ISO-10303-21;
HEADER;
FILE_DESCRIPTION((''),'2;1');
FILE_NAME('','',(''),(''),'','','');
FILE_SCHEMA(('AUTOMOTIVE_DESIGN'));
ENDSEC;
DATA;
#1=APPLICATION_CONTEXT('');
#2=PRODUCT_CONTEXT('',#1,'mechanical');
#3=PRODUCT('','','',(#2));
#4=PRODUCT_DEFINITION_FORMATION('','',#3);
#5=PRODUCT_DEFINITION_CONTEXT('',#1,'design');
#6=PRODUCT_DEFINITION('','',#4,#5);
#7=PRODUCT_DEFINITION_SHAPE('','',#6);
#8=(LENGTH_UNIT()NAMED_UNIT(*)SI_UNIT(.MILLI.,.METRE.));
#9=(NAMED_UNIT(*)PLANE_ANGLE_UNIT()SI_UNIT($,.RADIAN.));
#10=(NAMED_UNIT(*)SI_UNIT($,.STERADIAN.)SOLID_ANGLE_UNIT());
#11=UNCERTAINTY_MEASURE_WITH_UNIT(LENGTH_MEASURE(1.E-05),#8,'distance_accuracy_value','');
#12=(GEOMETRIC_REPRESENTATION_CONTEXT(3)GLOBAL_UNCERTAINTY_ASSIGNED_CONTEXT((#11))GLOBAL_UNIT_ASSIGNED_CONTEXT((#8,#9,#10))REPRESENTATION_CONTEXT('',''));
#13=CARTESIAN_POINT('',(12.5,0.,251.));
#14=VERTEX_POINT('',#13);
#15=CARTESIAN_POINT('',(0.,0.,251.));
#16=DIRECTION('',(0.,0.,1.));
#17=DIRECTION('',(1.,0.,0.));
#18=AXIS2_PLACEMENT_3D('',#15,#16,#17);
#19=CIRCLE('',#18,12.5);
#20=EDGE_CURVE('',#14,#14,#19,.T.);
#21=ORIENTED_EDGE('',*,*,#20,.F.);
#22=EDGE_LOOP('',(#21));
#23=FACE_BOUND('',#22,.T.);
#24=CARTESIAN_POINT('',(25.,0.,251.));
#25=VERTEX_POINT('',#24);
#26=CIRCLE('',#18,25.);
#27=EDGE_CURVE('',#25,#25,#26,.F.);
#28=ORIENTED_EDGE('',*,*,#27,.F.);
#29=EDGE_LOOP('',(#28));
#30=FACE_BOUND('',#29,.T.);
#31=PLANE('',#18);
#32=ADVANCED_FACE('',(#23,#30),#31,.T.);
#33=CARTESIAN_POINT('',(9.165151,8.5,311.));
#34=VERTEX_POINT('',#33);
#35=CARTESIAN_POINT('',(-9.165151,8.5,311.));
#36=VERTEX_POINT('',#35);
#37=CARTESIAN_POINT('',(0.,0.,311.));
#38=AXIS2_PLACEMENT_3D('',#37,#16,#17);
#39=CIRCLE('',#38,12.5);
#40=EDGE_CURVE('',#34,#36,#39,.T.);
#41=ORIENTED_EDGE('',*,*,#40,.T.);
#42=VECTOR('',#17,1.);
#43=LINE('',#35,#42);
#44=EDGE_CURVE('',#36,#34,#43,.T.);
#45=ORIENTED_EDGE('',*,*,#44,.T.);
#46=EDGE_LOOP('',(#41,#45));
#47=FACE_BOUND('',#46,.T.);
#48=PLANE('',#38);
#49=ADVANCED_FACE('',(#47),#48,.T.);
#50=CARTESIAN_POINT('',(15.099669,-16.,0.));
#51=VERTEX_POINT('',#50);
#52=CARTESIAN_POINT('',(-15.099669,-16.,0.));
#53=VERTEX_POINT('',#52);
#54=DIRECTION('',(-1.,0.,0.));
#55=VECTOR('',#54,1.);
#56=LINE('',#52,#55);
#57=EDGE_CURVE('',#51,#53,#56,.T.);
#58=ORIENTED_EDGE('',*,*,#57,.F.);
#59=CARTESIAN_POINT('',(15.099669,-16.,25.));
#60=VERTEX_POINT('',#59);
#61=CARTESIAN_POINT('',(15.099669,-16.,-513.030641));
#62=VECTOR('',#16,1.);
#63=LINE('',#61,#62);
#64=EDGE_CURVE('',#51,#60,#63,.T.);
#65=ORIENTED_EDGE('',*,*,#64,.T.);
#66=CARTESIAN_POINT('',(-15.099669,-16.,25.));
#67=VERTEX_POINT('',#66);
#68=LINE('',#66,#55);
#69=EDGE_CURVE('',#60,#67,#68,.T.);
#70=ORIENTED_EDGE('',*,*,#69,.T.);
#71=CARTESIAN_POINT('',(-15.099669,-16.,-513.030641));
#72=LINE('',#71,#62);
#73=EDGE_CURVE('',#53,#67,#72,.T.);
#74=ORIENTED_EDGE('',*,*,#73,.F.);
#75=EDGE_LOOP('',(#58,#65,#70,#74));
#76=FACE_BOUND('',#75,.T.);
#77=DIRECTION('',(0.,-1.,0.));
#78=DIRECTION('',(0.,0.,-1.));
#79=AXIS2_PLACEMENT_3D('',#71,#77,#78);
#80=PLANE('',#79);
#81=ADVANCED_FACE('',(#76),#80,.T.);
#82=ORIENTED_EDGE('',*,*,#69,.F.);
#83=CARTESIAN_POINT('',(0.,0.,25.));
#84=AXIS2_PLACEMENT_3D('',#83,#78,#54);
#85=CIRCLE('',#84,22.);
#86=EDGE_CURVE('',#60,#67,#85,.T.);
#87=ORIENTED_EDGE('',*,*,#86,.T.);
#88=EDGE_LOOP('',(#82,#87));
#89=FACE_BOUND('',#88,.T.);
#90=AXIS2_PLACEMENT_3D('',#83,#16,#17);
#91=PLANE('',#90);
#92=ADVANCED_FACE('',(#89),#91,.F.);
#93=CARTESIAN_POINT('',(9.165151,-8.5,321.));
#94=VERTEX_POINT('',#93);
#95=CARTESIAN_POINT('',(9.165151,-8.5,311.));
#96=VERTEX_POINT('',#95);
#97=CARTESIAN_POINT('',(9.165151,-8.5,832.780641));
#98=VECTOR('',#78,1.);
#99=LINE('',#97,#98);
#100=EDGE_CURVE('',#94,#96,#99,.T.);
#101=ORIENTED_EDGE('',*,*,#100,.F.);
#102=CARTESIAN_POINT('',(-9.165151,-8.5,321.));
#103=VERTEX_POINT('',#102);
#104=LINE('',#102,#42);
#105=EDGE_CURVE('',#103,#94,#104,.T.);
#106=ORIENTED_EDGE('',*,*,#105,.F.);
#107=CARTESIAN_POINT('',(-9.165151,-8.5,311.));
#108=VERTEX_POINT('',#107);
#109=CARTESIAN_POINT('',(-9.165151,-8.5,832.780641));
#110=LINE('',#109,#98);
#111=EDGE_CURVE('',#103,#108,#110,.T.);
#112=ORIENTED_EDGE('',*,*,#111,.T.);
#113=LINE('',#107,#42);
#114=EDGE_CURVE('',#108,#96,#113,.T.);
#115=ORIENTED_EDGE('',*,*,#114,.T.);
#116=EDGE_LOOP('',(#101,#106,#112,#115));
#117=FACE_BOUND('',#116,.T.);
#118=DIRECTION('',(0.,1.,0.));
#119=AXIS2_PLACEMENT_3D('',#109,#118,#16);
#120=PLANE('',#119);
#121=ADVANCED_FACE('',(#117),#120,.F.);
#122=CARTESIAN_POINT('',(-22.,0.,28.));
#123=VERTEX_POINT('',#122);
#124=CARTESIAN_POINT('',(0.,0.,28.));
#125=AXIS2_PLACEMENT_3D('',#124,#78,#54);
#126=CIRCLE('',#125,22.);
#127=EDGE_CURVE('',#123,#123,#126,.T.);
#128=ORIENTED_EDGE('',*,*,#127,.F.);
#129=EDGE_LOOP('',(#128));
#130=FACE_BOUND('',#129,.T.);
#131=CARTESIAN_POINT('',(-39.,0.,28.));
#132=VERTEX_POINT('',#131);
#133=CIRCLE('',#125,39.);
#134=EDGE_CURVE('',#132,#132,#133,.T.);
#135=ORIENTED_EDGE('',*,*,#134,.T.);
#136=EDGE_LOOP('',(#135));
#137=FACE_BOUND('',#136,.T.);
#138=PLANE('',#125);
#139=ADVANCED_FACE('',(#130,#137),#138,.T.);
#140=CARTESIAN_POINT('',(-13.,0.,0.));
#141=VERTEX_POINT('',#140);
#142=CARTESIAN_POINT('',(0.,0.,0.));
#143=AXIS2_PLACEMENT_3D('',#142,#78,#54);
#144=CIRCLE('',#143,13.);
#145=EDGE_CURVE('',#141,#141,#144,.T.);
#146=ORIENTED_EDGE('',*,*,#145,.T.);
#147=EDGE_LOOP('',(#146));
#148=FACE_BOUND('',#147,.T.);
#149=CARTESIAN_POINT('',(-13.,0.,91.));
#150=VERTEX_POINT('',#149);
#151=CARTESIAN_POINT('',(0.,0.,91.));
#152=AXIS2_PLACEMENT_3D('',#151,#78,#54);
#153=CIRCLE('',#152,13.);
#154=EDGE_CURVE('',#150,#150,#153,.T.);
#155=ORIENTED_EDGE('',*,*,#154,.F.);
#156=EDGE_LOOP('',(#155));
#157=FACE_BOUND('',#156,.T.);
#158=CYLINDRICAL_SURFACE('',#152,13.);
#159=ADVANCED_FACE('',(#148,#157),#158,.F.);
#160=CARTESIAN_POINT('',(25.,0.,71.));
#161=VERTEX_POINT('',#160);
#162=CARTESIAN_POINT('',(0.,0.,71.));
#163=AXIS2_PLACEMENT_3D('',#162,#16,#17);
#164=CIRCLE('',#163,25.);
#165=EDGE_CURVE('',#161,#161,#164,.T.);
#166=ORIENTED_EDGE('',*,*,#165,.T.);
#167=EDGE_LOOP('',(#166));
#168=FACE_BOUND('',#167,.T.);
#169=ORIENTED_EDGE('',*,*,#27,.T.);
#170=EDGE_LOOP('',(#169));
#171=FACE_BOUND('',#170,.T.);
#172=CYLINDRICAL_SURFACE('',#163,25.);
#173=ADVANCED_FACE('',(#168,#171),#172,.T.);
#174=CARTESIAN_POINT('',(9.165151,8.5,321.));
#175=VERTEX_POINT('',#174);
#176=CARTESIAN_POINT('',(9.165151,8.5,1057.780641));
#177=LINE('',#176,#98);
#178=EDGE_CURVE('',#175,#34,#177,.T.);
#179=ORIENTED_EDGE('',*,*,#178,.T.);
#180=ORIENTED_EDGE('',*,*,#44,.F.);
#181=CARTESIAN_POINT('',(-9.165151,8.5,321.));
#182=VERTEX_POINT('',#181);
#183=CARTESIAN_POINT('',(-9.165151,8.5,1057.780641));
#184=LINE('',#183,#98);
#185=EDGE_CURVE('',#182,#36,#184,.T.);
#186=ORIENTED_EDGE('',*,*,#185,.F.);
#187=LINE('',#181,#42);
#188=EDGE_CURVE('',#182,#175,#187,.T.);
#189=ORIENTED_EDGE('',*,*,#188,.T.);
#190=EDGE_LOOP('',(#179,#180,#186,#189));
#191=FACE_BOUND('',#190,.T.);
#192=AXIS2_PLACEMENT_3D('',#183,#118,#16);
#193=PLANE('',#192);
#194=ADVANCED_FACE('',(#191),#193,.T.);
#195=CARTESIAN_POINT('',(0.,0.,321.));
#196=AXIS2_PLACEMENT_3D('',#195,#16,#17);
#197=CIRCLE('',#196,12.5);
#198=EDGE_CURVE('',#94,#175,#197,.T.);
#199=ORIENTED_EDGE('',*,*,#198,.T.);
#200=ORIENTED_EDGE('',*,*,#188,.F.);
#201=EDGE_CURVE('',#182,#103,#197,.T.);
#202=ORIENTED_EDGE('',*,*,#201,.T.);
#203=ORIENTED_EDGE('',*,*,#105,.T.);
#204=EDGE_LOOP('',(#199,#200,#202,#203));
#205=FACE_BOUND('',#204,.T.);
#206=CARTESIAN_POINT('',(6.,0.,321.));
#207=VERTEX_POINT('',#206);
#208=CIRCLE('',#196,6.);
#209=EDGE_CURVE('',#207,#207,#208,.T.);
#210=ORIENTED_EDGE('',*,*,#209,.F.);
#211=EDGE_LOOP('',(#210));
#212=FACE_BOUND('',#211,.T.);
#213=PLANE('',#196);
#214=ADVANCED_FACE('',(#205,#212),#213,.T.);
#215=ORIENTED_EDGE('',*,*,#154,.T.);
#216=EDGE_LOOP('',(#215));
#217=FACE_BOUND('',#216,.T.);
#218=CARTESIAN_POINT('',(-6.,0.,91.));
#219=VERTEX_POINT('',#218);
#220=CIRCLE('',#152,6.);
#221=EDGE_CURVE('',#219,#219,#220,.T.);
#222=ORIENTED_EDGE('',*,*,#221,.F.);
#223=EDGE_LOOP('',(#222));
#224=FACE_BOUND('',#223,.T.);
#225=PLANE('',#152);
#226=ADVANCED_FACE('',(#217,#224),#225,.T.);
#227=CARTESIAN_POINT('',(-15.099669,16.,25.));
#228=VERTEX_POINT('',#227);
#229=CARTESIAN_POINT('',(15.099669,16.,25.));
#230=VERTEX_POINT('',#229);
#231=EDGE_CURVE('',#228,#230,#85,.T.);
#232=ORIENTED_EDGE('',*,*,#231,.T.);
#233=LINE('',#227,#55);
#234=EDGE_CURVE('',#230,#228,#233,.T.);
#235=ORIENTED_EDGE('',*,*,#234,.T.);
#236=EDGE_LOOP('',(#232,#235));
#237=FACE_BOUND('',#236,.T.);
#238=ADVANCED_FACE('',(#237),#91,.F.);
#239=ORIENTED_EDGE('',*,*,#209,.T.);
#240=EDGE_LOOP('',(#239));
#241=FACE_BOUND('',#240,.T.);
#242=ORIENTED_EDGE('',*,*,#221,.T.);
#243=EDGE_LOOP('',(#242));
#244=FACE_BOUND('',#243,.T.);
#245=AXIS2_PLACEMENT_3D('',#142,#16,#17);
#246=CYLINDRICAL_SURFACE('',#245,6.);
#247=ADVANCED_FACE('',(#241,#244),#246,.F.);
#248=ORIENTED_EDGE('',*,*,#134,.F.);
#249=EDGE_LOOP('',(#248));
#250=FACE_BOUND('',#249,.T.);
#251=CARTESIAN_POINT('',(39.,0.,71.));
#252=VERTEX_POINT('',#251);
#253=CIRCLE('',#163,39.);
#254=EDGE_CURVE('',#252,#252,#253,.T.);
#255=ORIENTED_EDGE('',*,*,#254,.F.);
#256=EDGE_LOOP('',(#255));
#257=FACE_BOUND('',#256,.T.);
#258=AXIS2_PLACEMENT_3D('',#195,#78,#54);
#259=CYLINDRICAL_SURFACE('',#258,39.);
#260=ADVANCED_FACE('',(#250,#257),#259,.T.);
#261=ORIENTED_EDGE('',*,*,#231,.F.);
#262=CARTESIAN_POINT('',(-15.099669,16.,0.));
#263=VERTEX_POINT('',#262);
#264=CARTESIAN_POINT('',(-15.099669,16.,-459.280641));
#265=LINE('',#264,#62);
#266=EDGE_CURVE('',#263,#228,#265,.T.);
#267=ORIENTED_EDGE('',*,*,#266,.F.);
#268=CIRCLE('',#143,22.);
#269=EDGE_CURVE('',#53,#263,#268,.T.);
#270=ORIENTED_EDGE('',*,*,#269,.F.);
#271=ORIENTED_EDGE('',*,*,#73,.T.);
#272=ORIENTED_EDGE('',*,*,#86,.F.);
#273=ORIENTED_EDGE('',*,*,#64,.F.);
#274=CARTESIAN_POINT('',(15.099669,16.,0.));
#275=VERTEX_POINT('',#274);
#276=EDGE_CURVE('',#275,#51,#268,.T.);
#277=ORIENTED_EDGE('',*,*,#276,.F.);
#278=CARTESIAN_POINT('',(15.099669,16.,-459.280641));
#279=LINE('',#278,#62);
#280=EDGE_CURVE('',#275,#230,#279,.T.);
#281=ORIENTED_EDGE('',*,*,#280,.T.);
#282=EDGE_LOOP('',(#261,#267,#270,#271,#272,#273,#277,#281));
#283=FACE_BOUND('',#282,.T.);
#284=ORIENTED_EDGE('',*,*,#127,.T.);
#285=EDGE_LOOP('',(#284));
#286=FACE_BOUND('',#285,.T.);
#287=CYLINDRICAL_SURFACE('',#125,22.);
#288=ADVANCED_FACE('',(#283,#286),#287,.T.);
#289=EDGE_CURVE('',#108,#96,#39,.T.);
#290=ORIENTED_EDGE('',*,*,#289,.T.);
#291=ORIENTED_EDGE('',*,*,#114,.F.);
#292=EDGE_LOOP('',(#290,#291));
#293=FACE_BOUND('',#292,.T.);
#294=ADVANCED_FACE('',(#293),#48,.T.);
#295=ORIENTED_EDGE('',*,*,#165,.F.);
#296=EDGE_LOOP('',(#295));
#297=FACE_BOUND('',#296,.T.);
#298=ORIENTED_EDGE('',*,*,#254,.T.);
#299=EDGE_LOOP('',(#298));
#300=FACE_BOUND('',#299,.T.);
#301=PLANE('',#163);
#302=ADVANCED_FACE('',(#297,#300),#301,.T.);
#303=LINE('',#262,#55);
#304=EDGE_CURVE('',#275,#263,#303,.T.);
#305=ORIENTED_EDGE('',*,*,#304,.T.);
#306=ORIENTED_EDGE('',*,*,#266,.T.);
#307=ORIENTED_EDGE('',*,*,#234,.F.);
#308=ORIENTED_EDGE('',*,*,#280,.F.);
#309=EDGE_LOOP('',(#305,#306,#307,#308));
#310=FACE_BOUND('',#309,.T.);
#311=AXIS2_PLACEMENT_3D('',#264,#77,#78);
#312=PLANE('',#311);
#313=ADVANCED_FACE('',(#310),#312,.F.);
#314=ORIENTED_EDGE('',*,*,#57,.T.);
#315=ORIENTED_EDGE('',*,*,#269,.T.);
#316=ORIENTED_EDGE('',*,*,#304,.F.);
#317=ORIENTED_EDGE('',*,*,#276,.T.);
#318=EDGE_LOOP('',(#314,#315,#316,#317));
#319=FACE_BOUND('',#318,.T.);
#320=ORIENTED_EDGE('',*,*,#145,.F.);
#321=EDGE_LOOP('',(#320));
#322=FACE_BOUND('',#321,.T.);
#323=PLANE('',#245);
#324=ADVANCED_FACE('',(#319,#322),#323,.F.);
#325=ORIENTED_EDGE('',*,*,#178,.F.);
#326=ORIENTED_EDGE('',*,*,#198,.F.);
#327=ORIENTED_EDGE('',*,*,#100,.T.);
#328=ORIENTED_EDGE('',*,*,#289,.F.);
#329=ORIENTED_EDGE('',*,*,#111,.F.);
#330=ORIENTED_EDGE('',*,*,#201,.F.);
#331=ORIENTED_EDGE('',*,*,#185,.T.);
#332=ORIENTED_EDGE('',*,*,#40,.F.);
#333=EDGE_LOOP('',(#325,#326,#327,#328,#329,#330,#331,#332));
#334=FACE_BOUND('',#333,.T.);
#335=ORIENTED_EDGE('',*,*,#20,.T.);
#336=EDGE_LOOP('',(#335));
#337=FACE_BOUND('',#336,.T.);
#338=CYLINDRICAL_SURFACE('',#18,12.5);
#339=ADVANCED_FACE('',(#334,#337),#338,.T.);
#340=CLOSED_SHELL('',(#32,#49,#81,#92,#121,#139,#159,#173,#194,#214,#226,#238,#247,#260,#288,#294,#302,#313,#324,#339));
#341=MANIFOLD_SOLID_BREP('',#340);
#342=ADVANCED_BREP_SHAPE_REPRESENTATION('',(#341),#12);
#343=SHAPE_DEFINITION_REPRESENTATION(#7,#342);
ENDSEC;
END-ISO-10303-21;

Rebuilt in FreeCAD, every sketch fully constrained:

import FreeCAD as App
import Part
import Sketcher

V = App.Vector
Q = App.Units.Quantity

doc = App.newDocument("Part")
body = doc.addObject("PartDesign::Body", "Body")

# Sketch on XY plane
sketch1 = body.newObject("Sketcher::SketchObject", "Sketch")
sketch1.AttachmentSupport = (doc.getObject("XY_Plane"), [""])
sketch1.MapMode = "FlatFace"
sketch1.addGeometry(Part.Circle(V(0, 0, 0), V(0, 0, 1), 39), False)
sketch1.addConstraint([
    Sketcher.Constraint("Coincident", 0, 3, -1, 1),
    Sketcher.Constraint("Diameter", 0, Q("78 mm")),
])
pad1 = body.newObject("PartDesign::Pad", "Pad")
pad1.Profile = sketch1
pad1.Length = 321

# Sketch on XY plane
sketch2 = body.newObject("Sketcher::SketchObject", "Sketch001")
sketch2.AttachmentSupport = (doc.getObject("XY_Plane"), [""])
sketch2.MapMode = "FlatFace"
sketch2.AttachmentOffset = App.Placement(V(0, 0, 321), App.Rotation())
sketch2.addGeometry([
    Part.LineSegment(V(-74, 74, 0), V(-74, -74, 0)),  # 0
    Part.LineSegment(V(-74, -74, 0), V(74, -74, 0)),  # 1
    Part.LineSegment(V(74, -74, 0), V(74, 74, 0)),  # 2
    Part.LineSegment(V(74, 74, 0), V(-74, 74, 0)),  # 3
    Part.Circle(V(0, 0, 0), V(0, 0, 1), 25),  # 4
], False)
sketch2.addConstraint([
    Sketcher.Constraint("Coincident", 0, 2, 1, 1),
    Sketcher.Constraint("Coincident", 1, 2, 2, 1),
    Sketcher.Constraint("Coincident", 2, 2, 3, 1),
    Sketcher.Constraint("Coincident", 3, 2, 0, 1),
    Sketcher.Constraint("Vertical", 0),
    Sketcher.Constraint("Horizontal", 1),
    Sketcher.Constraint("Vertical", 2),
    Sketcher.Constraint("Horizontal", 3),
    Sketcher.Constraint("Coincident", 4, 3, -1, 1),
    Sketcher.Constraint("Symmetric", 0, 2, 2, 2, -1, 1),
    Sketcher.Constraint("Equal", 3, 0),
    Sketcher.Constraint("Diameter", 4, Q("50 mm")),
    Sketcher.Constraint("DistanceX", 1, 1, 1, 2, Q("147.884 mm")),
])
pocket1 = body.newObject("PartDesign::Pocket", "Pocket")
pocket1.Profile = sketch2
pocket1.Length = 250

# Sketch on XY plane
sketch3 = body.newObject("Sketcher::SketchObject", "Sketch002")
sketch3.AttachmentSupport = (doc.getObject("XY_Plane"), [""])
sketch3.MapMode = "FlatFace"
sketch3.addGeometry([
    Part.LineSegment(V(74, 74, 0), V(74, -74, 0)),  # 0
    Part.LineSegment(V(74, -74, 0), V(-74, -74, 0)),  # 1
    Part.LineSegment(V(-74, -74, 0), V(-74, 74, 0)),  # 2
    Part.LineSegment(V(-74, 74, 0), V(74, 74, 0)),  # 3
    Part.Circle(V(0, 0, 0), V(0, 0, 1), 22),  # 4
], False)
sketch3.addConstraint([
    Sketcher.Constraint("Coincident", 0, 2, 1, 1),
    Sketcher.Constraint("Coincident", 1, 2, 2, 1),
    Sketcher.Constraint("Coincident", 2, 2, 3, 1),
    Sketcher.Constraint("Coincident", 3, 2, 0, 1),
    Sketcher.Constraint("Vertical", 0),
    Sketcher.Constraint("Horizontal", 1),
    Sketcher.Constraint("Vertical", 2),
    Sketcher.Constraint("Horizontal", 3),
    Sketcher.Constraint("Coincident", 4, 3, -1, 1),
    Sketcher.Constraint("Symmetric", 0, 2, 2, 2, -1, 1),
    Sketcher.Constraint("Equal", 3, 0),
    Sketcher.Constraint("Diameter", 4, Q("44 mm")),
    Sketcher.Constraint("DistanceX", 1, 2, 1, 1, Q("147.884 mm")),
])
pocket2 = body.newObject("PartDesign::Pocket", "Pocket001")
pocket2.Profile = sketch3
pocket2.Length = 28
pocket2.Reversed = True

# Sketch on XY plane
sketch4 = body.newObject("Sketcher::SketchObject", "Sketch003")
sketch4.AttachmentSupport = (doc.getObject("XY_Plane"), [""])
sketch4.MapMode = "FlatFace"
sketch4.addGeometry(Part.Circle(V(0, 0, 0), V(0, 0, 1), 13), False)
sketch4.addConstraint([
    Sketcher.Constraint("Coincident", 0, 3, -1, 1),
    Sketcher.Constraint("Diameter", 0, Q("26 mm")),
])
pocket3 = body.newObject("PartDesign::Pocket", "Pocket002")
pocket3.Profile = sketch4
pocket3.Length = 91
pocket3.Reversed = True

# Sketch on XY plane
sketch5 = body.newObject("Sketcher::SketchObject", "Sketch004")
sketch5.AttachmentSupport = (doc.getObject("XY_Plane"), [""])
sketch5.MapMode = "FlatFace"
sketch5.addGeometry([
    Part.LineSegment(V(-179, -16, 0), V(179, -16, 0)),
    Part.LineSegment(V(179, -16, 0), V(179, -345, 0)),
    Part.LineSegment(V(179, -345, 0), V(-179, -345, 0)),
    Part.LineSegment(V(-179, -345, 0), V(-179, -16, 0)),
], False)
sketch5.addConstraint([
    Sketcher.Constraint("Coincident", 0, 2, 1, 1),
    Sketcher.Constraint("Coincident", 1, 2, 2, 1),
    Sketcher.Constraint("Coincident", 2, 2, 3, 1),
    Sketcher.Constraint("Coincident", 3, 2, 0, 1),
    Sketcher.Constraint("Horizontal", 0),
    Sketcher.Constraint("Vertical", 1),
    Sketcher.Constraint("Horizontal", 2),
    Sketcher.Constraint("Vertical", 3),
    Sketcher.Constraint("DistanceY", 0, 2, -1, 1, Q("16 mm")),
    Sketcher.Constraint("DistanceY", 1, 2, 1, 1, Q("328.59097 mm")),
    Sketcher.Constraint("DistanceX", 0, 1, 0, 2, Q("358.790308 mm")),
    Sketcher.Constraint("DistanceX", -1, 1, 0, 2, Q("179.395154 mm")),
])
pocket4 = body.newObject("PartDesign::Pocket", "Pocket003")
pocket4.Profile = sketch5
pocket4.Type = "TwoLengths"
pocket4.Length = 326.703853
pocket4.Length2 = 25

# Sketch on XY plane
sketch6 = body.newObject("Sketcher::SketchObject", "Sketch005")
sketch6.AttachmentSupport = (doc.getObject("XY_Plane"), [""])
sketch6.MapMode = "FlatFace"
sketch6.addGeometry([
    Part.LineSegment(V(179, 16, 0), V(-179, 16, 0)),
    Part.LineSegment(V(-179, 16, 0), V(-179, 345, 0)),
    Part.LineSegment(V(-179, 345, 0), V(179, 345, 0)),
    Part.LineSegment(V(179, 345, 0), V(179, 16, 0)),
], False)
sketch6.addConstraint([
    Sketcher.Constraint("Coincident", 0, 2, 1, 1),
    Sketcher.Constraint("Coincident", 1, 2, 2, 1),
    Sketcher.Constraint("Coincident", 2, 2, 3, 1),
    Sketcher.Constraint("Coincident", 3, 2, 0, 1),
    Sketcher.Constraint("Horizontal", 0),
    Sketcher.Constraint("Vertical", 1),
    Sketcher.Constraint("Horizontal", 2),
    Sketcher.Constraint("Vertical", 3),
    Sketcher.Constraint("DistanceY", -1, 1, 0, 2, Q("16 mm")),
    Sketcher.Constraint("DistanceY", 1, 1, 1, 2, Q("328.59097 mm")),
    Sketcher.Constraint("DistanceX", 0, 2, 0, 1, Q("358.790308 mm")),
    Sketcher.Constraint("DistanceX", 0, 2, -1, 1, Q("179.395154 mm")),
])
pocket5 = body.newObject("PartDesign::Pocket", "Pocket004")
pocket5.Profile = sketch6
pocket5.Type = "TwoLengths"
pocket5.Length = 326.703853
pocket5.Length2 = 25

# Sketch on XY plane
sketch7 = body.newObject("Sketcher::SketchObject", "Sketch006")
sketch7.AttachmentSupport = (doc.getObject("XY_Plane"), [""])
sketch7.MapMode = "FlatFace"
sketch7.AttachmentOffset = App.Placement(V(0, 0, 321), App.Rotation())
sketch7.addGeometry([
    Part.LineSegment(V(-74, 74, 0), V(-74, -74, 0)),  # 0
    Part.LineSegment(V(-74, -74, 0), V(74, -74, 0)),  # 1
    Part.LineSegment(V(74, -74, 0), V(74, 74, 0)),  # 2
    Part.LineSegment(V(74, 74, 0), V(-74, 74, 0)),  # 3
    Part.Circle(V(0, 0, 0), V(0, 0, 1), 12),  # 4
], False)
sketch7.addConstraint([
    Sketcher.Constraint("Coincident", 0, 2, 1, 1),
    Sketcher.Constraint("Coincident", 1, 2, 2, 1),
    Sketcher.Constraint("Coincident", 2, 2, 3, 1),
    Sketcher.Constraint("Coincident", 3, 2, 0, 1),
    Sketcher.Constraint("Vertical", 0),
    Sketcher.Constraint("Horizontal", 1),
    Sketcher.Constraint("Vertical", 2),
    Sketcher.Constraint("Horizontal", 3),
    Sketcher.Constraint("Coincident", 4, 3, -1, 1),
    Sketcher.Constraint("Symmetric", 0, 2, 2, 2, -1, 1),
    Sketcher.Constraint("Equal", 3, 0),
    Sketcher.Constraint("Diameter", 4, Q("25 mm")),
    Sketcher.Constraint("DistanceX", 1, 1, 1, 2, Q("147.884 mm")),
])
pocket6 = body.newObject("PartDesign::Pocket", "Pocket005")
pocket6.Profile = sketch7
pocket6.Length = 70

# Sketch on XY plane
sketch8 = body.newObject("Sketcher::SketchObject", "Sketch007")
sketch8.AttachmentSupport = (doc.getObject("XY_Plane"), [""])
sketch8.MapMode = "FlatFace"
sketch8.AttachmentOffset = App.Placement(V(0, 0, 321), App.Rotation())
sketch8.addGeometry([
    Part.LineSegment(V(-154, 8, 0), V(154, 8, 0)),
    Part.LineSegment(V(154, 8, 0), V(154, 299, 0)),
    Part.LineSegment(V(154, 299, 0), V(-154, 299, 0)),
    Part.LineSegment(V(-154, 299, 0), V(-154, 8, 0)),
], False)
sketch8.addConstraint([
    Sketcher.Constraint("Coincident", 0, 2, 1, 1),
    Sketcher.Constraint("Coincident", 1, 2, 2, 1),
    Sketcher.Constraint("Coincident", 2, 2, 3, 1),
    Sketcher.Constraint("Coincident", 3, 2, 0, 1),
    Sketcher.Constraint("Horizontal", 0),
    Sketcher.Constraint("Vertical", 1),
    Sketcher.Constraint("Horizontal", 2),
    Sketcher.Constraint("Vertical", 3),
    Sketcher.Constraint("DistanceY", -1, 1, 0, 2, Q("8.5 mm")),
    Sketcher.Constraint("DistanceY", 1, 1, 1, 2, Q("290.588449 mm")),
    Sketcher.Constraint("DistanceX", 0, 1, 0, 2, Q("308.918752 mm")),
    Sketcher.Constraint("DistanceX", -1, 1, 0, 2, Q("154.459376 mm")),
])
pocket7 = body.newObject("PartDesign::Pocket", "Pocket006")
pocket7.Profile = sketch8
pocket7.Type = "TwoLengths"
pocket7.Length = 326.703853
pocket7.Length2 = 10
pocket7.Reversed = True

# Sketch on XY plane
sketch9 = body.newObject("Sketcher::SketchObject", "Sketch008")
sketch9.AttachmentSupport = (doc.getObject("XY_Plane"), [""])
sketch9.MapMode = "FlatFace"
sketch9.AttachmentOffset = App.Placement(V(0, 0, 321), App.Rotation())
sketch9.addGeometry([
    Part.LineSegment(V(154, -8, 0), V(-154, -8, 0)),
    Part.LineSegment(V(-154, -8, 0), V(-154, -299, 0)),
    Part.LineSegment(V(-154, -299, 0), V(154, -299, 0)),
    Part.LineSegment(V(154, -299, 0), V(154, -8, 0)),
], False)
sketch9.addConstraint([
    Sketcher.Constraint("Coincident", 0, 2, 1, 1),
    Sketcher.Constraint("Coincident", 1, 2, 2, 1),
    Sketcher.Constraint("Coincident", 2, 2, 3, 1),
    Sketcher.Constraint("Coincident", 3, 2, 0, 1),
    Sketcher.Constraint("Horizontal", 0),
    Sketcher.Constraint("Vertical", 1),
    Sketcher.Constraint("Horizontal", 2),
    Sketcher.Constraint("Vertical", 3),
    Sketcher.Constraint("DistanceY", 0, 2, -1, 1, Q("8.5 mm")),
    Sketcher.Constraint("DistanceY", 1, 2, 1, 1, Q("290.588449 mm")),
    Sketcher.Constraint("DistanceX", 0, 2, 0, 1, Q("308.918752 mm")),
    Sketcher.Constraint("DistanceX", 0, 2, -1, 1, Q("154.459376 mm")),
])
pocket8 = body.newObject("PartDesign::Pocket", "Pocket007")
pocket8.Profile = sketch9
pocket8.Type = "TwoLengths"
pocket8.Length = 326.703853
pocket8.Length2 = 10
pocket8.Reversed = True

# Sketch on XY plane
sketch10 = body.newObject("Sketcher::SketchObject", "Sketch009")
sketch10.AttachmentSupport = (doc.getObject("XY_Plane"), [""])
sketch10.MapMode = "FlatFace"
sketch10.AttachmentOffset = App.Placement(V(0, 0, 321), App.Rotation())
sketch10.addGeometry(Part.Circle(V(0, 0, 0), V(0, 0, 1), 6), False)
sketch10.addConstraint([
    Sketcher.Constraint("Coincident", 0, 3, -1, 1),
    Sketcher.Constraint("Diameter", 0, Q("12 mm")),
])
pocket9 = body.newObject("PartDesign::Pocket", "Pocket008")
pocket9.Profile = sketch10
pocket9.Type = "ThroughAll"

doc.recompute()
